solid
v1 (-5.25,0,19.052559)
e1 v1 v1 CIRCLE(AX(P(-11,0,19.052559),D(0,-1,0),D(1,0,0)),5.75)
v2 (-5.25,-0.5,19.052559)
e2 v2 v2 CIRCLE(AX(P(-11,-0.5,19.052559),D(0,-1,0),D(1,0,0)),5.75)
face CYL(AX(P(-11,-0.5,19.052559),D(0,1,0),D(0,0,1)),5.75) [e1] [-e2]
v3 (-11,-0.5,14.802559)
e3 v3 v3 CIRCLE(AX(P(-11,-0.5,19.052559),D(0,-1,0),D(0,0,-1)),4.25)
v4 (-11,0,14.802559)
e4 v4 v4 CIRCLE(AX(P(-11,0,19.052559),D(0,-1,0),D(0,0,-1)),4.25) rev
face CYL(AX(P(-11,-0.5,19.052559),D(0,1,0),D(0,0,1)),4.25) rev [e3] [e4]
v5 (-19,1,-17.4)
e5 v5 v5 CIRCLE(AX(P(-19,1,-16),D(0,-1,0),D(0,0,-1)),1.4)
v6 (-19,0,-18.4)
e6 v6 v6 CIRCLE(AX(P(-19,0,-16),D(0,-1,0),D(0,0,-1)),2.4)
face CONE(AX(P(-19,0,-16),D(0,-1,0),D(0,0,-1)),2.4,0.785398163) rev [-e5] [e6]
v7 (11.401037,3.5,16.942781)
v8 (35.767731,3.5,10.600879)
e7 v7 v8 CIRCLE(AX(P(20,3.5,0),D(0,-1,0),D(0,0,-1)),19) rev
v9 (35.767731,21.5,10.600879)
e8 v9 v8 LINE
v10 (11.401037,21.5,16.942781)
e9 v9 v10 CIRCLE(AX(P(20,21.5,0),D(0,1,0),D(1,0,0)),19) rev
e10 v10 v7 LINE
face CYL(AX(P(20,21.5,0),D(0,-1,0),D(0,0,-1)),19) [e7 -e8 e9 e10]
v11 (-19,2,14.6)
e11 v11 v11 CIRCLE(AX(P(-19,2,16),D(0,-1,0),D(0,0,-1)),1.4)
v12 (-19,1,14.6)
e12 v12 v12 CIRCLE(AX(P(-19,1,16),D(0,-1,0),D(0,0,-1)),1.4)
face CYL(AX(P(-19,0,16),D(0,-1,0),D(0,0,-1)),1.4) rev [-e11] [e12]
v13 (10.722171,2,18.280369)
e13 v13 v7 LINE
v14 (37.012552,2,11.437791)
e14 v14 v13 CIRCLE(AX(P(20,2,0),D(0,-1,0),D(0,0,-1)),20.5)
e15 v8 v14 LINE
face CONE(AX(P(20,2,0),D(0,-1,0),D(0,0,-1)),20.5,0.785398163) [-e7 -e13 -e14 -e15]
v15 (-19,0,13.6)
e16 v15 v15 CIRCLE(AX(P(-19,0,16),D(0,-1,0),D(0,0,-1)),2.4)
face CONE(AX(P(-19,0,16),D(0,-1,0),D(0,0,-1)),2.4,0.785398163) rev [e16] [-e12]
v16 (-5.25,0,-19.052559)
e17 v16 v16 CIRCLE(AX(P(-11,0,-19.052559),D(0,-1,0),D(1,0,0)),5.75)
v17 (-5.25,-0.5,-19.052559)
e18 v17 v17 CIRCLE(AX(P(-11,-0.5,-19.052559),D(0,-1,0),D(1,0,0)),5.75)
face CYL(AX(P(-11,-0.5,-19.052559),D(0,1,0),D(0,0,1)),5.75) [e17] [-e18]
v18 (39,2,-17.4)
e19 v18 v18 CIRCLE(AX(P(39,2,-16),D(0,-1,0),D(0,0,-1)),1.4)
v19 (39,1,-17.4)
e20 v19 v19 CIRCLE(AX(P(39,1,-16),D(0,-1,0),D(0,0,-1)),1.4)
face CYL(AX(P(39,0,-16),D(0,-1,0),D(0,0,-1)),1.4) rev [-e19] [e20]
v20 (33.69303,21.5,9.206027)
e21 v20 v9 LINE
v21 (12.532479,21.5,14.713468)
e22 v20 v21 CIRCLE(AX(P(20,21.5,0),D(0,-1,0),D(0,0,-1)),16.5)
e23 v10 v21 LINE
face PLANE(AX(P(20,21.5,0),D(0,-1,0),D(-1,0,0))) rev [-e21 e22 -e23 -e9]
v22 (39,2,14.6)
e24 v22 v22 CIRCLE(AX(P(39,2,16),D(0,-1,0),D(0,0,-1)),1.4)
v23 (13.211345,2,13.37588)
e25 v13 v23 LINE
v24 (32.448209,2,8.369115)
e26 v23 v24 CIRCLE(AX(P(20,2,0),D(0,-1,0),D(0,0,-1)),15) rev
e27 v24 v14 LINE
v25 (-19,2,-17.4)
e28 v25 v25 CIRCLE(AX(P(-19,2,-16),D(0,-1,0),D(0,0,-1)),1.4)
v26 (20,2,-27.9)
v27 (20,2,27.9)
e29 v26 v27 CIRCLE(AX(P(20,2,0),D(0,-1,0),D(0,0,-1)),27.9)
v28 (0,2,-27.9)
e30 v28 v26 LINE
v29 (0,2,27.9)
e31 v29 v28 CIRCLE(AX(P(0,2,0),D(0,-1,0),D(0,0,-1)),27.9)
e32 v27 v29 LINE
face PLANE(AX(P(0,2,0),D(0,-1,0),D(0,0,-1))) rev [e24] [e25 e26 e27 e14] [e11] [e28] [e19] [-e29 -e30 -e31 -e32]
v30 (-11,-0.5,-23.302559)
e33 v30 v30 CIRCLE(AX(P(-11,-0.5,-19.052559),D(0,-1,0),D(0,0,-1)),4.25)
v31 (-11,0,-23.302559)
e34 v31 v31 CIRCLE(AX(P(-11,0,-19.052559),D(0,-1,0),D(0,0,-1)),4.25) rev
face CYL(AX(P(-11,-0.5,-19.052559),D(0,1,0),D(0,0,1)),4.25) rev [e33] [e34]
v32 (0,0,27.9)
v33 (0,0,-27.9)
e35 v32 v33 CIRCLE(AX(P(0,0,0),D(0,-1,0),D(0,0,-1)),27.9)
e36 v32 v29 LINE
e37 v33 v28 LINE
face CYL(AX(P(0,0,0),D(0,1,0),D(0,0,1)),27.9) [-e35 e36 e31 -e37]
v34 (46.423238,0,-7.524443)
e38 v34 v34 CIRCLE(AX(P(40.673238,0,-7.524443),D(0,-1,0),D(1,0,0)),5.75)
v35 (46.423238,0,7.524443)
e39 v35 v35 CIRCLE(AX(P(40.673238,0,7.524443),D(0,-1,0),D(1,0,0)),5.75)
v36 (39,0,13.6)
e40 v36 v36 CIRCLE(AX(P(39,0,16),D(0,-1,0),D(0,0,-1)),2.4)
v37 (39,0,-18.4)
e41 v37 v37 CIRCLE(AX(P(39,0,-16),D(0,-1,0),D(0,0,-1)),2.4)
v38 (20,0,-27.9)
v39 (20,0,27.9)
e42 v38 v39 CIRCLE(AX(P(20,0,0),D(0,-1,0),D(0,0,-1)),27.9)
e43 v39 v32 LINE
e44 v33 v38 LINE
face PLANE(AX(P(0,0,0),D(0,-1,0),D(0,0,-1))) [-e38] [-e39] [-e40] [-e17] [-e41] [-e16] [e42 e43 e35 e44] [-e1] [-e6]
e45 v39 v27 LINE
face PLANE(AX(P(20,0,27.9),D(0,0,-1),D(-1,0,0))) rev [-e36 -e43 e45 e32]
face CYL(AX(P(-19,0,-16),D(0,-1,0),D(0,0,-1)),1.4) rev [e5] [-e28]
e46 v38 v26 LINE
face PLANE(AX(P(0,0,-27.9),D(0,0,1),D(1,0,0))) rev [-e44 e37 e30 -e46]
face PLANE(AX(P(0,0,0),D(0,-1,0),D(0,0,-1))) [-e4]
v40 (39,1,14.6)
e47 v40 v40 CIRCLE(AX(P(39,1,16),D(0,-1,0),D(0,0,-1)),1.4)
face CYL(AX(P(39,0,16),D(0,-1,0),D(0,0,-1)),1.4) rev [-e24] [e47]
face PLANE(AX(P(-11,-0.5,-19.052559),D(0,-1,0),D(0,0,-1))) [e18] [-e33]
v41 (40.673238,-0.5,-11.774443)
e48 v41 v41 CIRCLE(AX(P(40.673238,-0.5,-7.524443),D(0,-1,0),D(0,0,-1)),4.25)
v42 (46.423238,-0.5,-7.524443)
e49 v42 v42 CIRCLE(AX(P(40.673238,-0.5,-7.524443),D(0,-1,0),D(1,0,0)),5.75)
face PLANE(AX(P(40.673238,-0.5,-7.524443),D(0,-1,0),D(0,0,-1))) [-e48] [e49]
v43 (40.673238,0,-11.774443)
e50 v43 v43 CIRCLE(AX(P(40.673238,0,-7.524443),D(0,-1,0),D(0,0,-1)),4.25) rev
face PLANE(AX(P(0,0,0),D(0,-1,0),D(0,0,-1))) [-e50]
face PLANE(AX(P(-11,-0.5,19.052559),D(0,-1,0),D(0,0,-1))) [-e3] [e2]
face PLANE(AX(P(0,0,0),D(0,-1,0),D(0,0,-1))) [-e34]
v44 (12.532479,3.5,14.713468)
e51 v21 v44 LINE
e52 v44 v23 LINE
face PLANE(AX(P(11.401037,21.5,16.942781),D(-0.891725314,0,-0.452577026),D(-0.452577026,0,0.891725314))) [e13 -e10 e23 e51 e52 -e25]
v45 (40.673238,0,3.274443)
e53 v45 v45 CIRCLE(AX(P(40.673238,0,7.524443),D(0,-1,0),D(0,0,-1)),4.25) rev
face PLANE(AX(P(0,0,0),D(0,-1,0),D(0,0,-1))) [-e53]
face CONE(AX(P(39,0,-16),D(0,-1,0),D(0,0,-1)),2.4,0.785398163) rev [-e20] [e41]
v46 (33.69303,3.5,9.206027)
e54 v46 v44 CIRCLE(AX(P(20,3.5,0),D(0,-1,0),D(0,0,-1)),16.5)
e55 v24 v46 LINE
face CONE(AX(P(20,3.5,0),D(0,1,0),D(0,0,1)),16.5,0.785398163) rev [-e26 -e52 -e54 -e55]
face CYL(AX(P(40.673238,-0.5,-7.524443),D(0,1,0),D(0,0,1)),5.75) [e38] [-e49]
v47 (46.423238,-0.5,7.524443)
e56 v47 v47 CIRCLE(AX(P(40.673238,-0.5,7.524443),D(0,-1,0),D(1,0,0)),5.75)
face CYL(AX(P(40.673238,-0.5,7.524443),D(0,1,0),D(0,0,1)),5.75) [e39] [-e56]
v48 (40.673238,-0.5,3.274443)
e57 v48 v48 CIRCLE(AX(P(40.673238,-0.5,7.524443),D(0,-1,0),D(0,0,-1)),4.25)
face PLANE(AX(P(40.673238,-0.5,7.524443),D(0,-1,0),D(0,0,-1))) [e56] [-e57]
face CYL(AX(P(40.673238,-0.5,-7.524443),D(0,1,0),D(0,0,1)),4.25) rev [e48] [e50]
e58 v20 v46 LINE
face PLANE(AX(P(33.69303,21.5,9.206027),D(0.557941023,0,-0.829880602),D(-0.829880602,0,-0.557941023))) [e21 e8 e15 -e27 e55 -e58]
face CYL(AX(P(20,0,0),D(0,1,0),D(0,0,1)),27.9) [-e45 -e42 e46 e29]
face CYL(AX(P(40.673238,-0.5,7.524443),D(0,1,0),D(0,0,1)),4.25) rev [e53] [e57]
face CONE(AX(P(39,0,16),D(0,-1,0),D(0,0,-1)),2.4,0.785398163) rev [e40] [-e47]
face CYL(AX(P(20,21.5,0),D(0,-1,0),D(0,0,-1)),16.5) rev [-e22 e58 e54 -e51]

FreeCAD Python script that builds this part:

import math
import FreeCAD as App
import Part
import Sketcher
Q = App.Units.Quantity


def edges_at(feature, points):
    """Names of the edges that pass closest to the given points."""
    edges = feature.Shape.Edges
    near = lambda p: min(range(len(edges)), key=lambda i: edges[i].distToShape(Part.Vertex(*p))[0])
    return sorted({f"Edge{near(p) + 1}" for p in points})

doc = App.newDocument("Part")
body = doc.addObject("PartDesign::Body", "Body")

# Sketch on XZ plane
sketch1 = body.newObject("Sketcher::SketchObject", "Sketch")
sketch1.AttachmentSupport = (doc.getObject("XZ_Plane"), [""])
sketch1.MapMode = "FlatFace"
sketch1.AttachmentOffset = App.Placement(App.Vector(0, 0, -2), App.Rotation())
sketch1.addGeometry(Part.LineSegment(App.Vector(0, -28, 0), App.Vector(20, -28, 0)), False)
sketch1.addGeometry(Part.ArcOfCircle(Part.Circle(App.Vector(20, 0, 0), App.Vector(0, 0, 1), 28), math.radians(-90), math.radians(90)), False)
sketch1.addGeometry(Part.LineSegment(App.Vector(20, 28, 0), App.Vector(0, 28, 0)), False)
sketch1.addGeometry(Part.ArcOfCircle(Part.Circle(App.Vector(0, 0, 0), App.Vector(0, 0, 1), 28), math.radians(90), math.radians(270)), False)
sketch1.addConstraint(Sketcher.Constraint("Tangent", 0, 2, 1, 1))
sketch1.addConstraint(Sketcher.Constraint("Tangent", 1, 2, 2, 1))
sketch1.addConstraint(Sketcher.Constraint("Tangent", 2, 2, 3, 1))
sketch1.addConstraint(Sketcher.Constraint("Tangent", 3, 2, 0, 1))
sketch1.addConstraint(Sketcher.Constraint("Horizontal", 0))
sketch1.addConstraint(Sketcher.Constraint("Horizontal", 2))
sketch1.addConstraint(Sketcher.Constraint("Coincident", 3, 3, -1, 1))
sketch1.addConstraint(Sketcher.Constraint("Radius", 1, Q("27.9 mm")))
sketch1.addConstraint(Sketcher.Constraint("DistanceX", 0, 1, 0, 2, Q("20 mm")))
pad1 = body.newObject("PartDesign::Pad", "Pad")
pad1.Profile = sketch1
pad1.Length = 2

# Sketch on XZ plane
sketch2 = body.newObject("Sketcher::SketchObject", "Sketch001")
sketch2.AttachmentSupport = (doc.getObject("XZ_Plane"), [""])
sketch2.MapMode = "FlatFace"
sketch2.AttachmentOffset = App.Placement(App.Vector(0, 0, -2), App.Rotation())
sketch2.addGeometry(Part.ArcOfCircle(Part.Circle(App.Vector(20, 0, 0), App.Vector(0, 0, 1), 16.5), math.radians(34), math.radians(117)), False)
sketch2.addGeometry(Part.LineSegment(App.Vector(12.5, 14.7, 0), App.Vector(11.4, 16.9, 0)), False)
sketch2.addGeometry(Part.ArcOfCircle(Part.Circle(App.Vector(20, 0, 0), App.Vector(0, 0, 1), 19), math.radians(34), math.radians(117)), False)
sketch2.addGeometry(Part.LineSegment(App.Vector(35.8, 10.6, 0), App.Vector(33.7, 9.2, 0)), False)
sketch2.addConstraint(Sketcher.Constraint("Coincident", 0, 2, 1, 1))
sketch2.addConstraint(Sketcher.Constraint("Coincident", 1, 2, 2, 2))
sketch2.addConstraint(Sketcher.Constraint("Coincident", 2, 1, 3, 1))
sketch2.addConstraint(Sketcher.Constraint("Coincident", 3, 2, 0, 1))
sketch2.addConstraint(Sketcher.Constraint("Coincident", 2, 3, 0, 3))
sketch2.addConstraint(Sketcher.Constraint("PointOnObject", 0, 3, -1))
sketch2.addConstraint(Sketcher.Constraint("Radius", 2, Q("19 mm")))
sketch2.addConstraint(Sketcher.Constraint("Radius", 0, Q("16.5 mm")))
sketch2.addConstraint(Sketcher.Constraint("DistanceX", -1, 1, 0, 3, Q("20 mm")))
sketch2.addConstraint(Sketcher.Constraint("DistanceY", 2, 1, 1, 2, Q("6.341902 mm")))
sketch2.addConstraint(Sketcher.Constraint("DistanceX", 3, 2, 2, 1, Q("2.074702 mm")))
sketch2.addConstraint(Sketcher.Constraint("DistanceX", -1, 1, 0, 2, Q("12.532479 mm")))
sketch2.addConstraint(Sketcher.Constraint("DistanceY", -1, 1, 1, 2, Q("16.942781 mm")))
pad2 = body.newObject("PartDesign::Pad", "Pad001")
pad2.Profile = sketch2
pad2.Length = 19.5
pad2.Reversed = True
doc.recompute()

chamfer = body.newObject("PartDesign::Chamfer", "Chamfer")
chamfer.Base = (pad2, edges_at(pad2, [(24.156, 2, 15.968), (24.786, 2, 18.387)]))
chamfer.Size = 1.5

# Sketch on XZ plane
sketch3 = body.newObject("Sketcher::SketchObject", "Sketch002")
sketch3.AttachmentSupport = (doc.getObject("XZ_Plane"), [""])
sketch3.MapMode = "FlatFace"
sketch3.addGeometry(Part.Circle(App.Vector(39, -16, 0), App.Vector(0, 0, 1), 1.4), False)
sketch3.addGeometry(Part.Circle(App.Vector(39, 16, 0), App.Vector(0, 0, 1), 1.4), False)
sketch3.addGeometry(Part.Circle(App.Vector(-19, 16, 0), App.Vector(0, 0, 1), 1.4), False)
sketch3.addGeometry(Part.Circle(App.Vector(-19, -16, 0), App.Vector(0, 0, 1), 1.4), False)
sketch3.addConstraint(Sketcher.Constraint("Equal", 0, 1))
sketch3.addConstraint(Sketcher.Constraint("Equal", 1, 2))
sketch3.addConstraint(Sketcher.Constraint("Equal", 2, 3))
sketch3.addConstraint(Sketcher.Constraint("Symmetric", 0, 3, 1, 3, -1))
sketch3.addConstraint(Sketcher.Constraint("Symmetric", 2, 3, 3, 3, -1))
sketch3.addConstraint(Sketcher.Constraint("Horizontal", 1, 3, 2, 3))
sketch3.addConstraint(Sketcher.Constraint("Diameter", 0, Q("2.8 mm")))
sketch3.addConstraint(Sketcher.Constraint("DistanceX", -1, 1, 0, 3, Q("39 mm")))
sketch3.addConstraint(Sketcher.Constraint("DistanceY", 0, 3, -1, 1, Q("16 mm")))
sketch3.addConstraint(Sketcher.Constraint("DistanceX", 2, 3, -1, 1, Q("19 mm")))
doc.recompute()
hole = body.newObject("PartDesign::Hole", "Hole")
hole.Profile = sketch3
hole.ThreadType = "None"
hole.Diameter = 2.8
hole.DepthType = "Dimension"
hole.Depth = 7.5
hole.DrillPoint = "Angled"
hole.DrillPointAngle = 118
hole.HoleCutType = "Countersink"
hole.HoleCutDiameter = 4.8
hole.HoleCutCountersinkAngle = 90

# Sketch on XZ plane
sketch4 = body.newObject("Sketcher::SketchObject", "Sketch003")
sketch4.AttachmentSupport = (doc.getObject("XZ_Plane"), [""])
sketch4.MapMode = "FlatFace"
sketch4.addGeometry(Part.Circle(App.Vector(-11, 19.1, 0), App.Vector(0, 0, 1), 5.8), False)
sketch4.addGeometry(Part.Circle(App.Vector(-11, 19.1, 0), App.Vector(0, 0, 1), 4.2), False)
sketch4.addGeometry(Part.Circle(App.Vector(-11, -19.1, 0), App.Vector(0, 0, 1), 5.8), False)
sketch4.addGeometry(Part.Circle(App.Vector(-11, -19.1, 0), App.Vector(0, 0, 1), 4.2), False)
sketch4.addGeometry(Part.Circle(App.Vector(40.7, 7.5, 0), App.Vector(0, 0, 1), 5.8), False)
sketch4.addGeometry(Part.Circle(App.Vector(40.7, 7.5, 0), App.Vector(0, 0, 1), 4.2), False)
sketch4.addGeometry(Part.Circle(App.Vector(40.7, -7.5, 0), App.Vector(0, 0, 1), 5.8), False)
sketch4.addGeometry(Part.Circle(App.Vector(40.7, -7.5, 0), App.Vector(0, 0, 1), 4.2), False)
sketch4.addConstraint(Sketcher.Constraint("Coincident", 1, 3, 0, 3))
sketch4.addConstraint(Sketcher.Constraint("Coincident", 3, 3, 2, 3))
sketch4.addConstraint(Sketcher.Constraint("Coincident", 5, 3, 4, 3))
sketch4.addConstraint(Sketcher.Constraint("Coincident", 7, 3, 6, 3))
sketch4.addConstraint(Sketcher.Constraint("Equal", 0, 2))
sketch4.addConstraint(Sketcher.Constraint("Equal", 1, 3))
sketch4.addConstraint(Sketcher.Constraint("Equal", 2, 4))
sketch4.addConstraint(Sketcher.Constraint("Equal", 3, 5))
sketch4.addConstraint(Sketcher.Constraint("Equal", 4, 6))
sketch4.addConstraint(Sketcher.Constraint("Equal", 5, 7))
sketch4.addConstraint(Sketcher.Constraint("Symmetric", 0, 3, 2, 3, -1))
sketch4.addConstraint(Sketcher.Constraint("Symmetric", 4, 3, 6, 3, -1))
sketch4.addConstraint(Sketcher.Constraint("Diameter", 0, Q("11.5 mm")))
sketch4.addConstraint(Sketcher.Constraint("Diameter", 1, Q("8.5 mm")))
sketch4.addConstraint(Sketcher.Constraint("DistanceX", 0, 3, -1, 1, Q("11 mm")))
sketch4.addConstraint(Sketcher.Constraint("DistanceY", -1, 1, 0, 3, Q("19.052559 mm")))
sketch4.addConstraint(Sketcher.Constraint("DistanceX", -1, 1, 4, 3, Q("40.673238 mm")))
sketch4.addConstraint(Sketcher.Constraint("DistanceY", -1, 1, 4, 3, Q("7.524443 mm")))
pad3 = body.newObject("PartDesign::Pad", "Pad002")
pad3.Profile = sketch4
pad3.Length = 0.5

doc.recompute()
